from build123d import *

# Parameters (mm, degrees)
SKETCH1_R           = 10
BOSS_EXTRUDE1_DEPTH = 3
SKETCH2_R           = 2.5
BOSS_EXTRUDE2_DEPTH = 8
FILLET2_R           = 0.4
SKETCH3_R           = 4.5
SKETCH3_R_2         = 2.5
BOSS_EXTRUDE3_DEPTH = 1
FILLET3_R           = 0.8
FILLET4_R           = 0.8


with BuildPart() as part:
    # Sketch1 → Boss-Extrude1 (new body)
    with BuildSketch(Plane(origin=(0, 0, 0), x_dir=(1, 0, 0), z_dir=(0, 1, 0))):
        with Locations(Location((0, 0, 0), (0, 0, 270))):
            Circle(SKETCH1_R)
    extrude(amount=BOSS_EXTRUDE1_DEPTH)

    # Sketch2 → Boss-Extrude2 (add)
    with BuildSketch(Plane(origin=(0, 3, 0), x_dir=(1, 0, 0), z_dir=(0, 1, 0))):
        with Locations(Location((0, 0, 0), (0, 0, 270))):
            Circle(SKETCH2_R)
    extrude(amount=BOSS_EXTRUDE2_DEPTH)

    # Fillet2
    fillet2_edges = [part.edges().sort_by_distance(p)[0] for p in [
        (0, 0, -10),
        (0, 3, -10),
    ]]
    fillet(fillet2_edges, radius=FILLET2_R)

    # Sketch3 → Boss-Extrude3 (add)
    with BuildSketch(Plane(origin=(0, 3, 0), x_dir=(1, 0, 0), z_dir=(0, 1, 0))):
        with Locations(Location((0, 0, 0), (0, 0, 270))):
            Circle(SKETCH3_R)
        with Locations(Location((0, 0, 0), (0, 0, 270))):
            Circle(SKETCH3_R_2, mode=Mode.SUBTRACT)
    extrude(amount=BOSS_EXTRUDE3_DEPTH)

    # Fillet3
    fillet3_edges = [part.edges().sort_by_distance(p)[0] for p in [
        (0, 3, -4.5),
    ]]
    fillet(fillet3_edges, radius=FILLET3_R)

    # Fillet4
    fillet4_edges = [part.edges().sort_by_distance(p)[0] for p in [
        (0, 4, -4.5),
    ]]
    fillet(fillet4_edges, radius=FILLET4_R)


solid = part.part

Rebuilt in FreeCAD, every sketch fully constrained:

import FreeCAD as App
import Part
import Sketcher


def edges_at(feature, points):
    """Names of the edges that pass closest to the given points."""
    edges = feature.Shape.Edges
    near = lambda p: min(range(len(edges)), key=lambda i: edges[i].distToShape(Part.Vertex(*p))[0])
    return sorted({f"Edge{near(p) + 1}" for p in points})

doc = App.newDocument("Part")
body = doc.addObject("PartDesign::Body", "Body")

# Sketch on XZ plane
sketch1 = doc.addObject("Sketcher::SketchObject", "Sketch")
body.addObject(sketch1)
sketch1.AttachmentSupport = (doc.XZ_Plane, [""])
sketch1.MapMode = "FlatFace"
sketch1.addGeometry(Part.Circle(App.Vector(0, 0, 0), App.Vector(0, 0, 1), 10), False)
sketch1.addConstraint([
    Sketcher.Constraint("Coincident", 0, 3, -1, 1),
    Sketcher.Constraint("Diameter", 0, 20.0),
])
pad1 = doc.addObject("PartDesign::Pad", "Pad")
body.addObject(pad1)
pad1.Profile = sketch1
pad1.Length = 3
pad1.Reversed = True

# Sketch on XZ plane
sketch2 = doc.addObject("Sketcher::SketchObject", "Sketch001")
body.addObject(sketch2)
sketch2.AttachmentSupport = (doc.XZ_Plane, [""])
sketch2.MapMode = "FlatFace"
sketch2.AttachmentOffset = App.Placement(App.Vector(0, 0, -3), App.Rotation())
sketch2.addGeometry(Part.Circle(App.Vector(0, 0, 0), App.Vector(0, 0, 1), 2.5), False)
sketch2.addConstraint([
    Sketcher.Constraint("Coincident", 0, 3, -1, 1),
    Sketcher.Constraint("Diameter", 0, 5.0),
])
pad2 = doc.addObject("PartDesign::Pad", "Pad001")
body.addObject(pad2)
pad2.Profile = sketch2
pad2.Length = 8
pad2.Reversed = True
doc.recompute()

fillet = doc.addObject("PartDesign::Fillet", "Fillet")
body.addObject(fillet)
fillet.Base = (pad2, edges_at(pad2, [(0, 0, -10), (0, 3, -10)]))
fillet.Radius = 0.4

# Sketch on XZ plane
sketch3 = doc.addObject("Sketcher::SketchObject", "Sketch002")
body.addObject(sketch3)
sketch3.AttachmentSupport = (doc.XZ_Plane, [""])
sketch3.MapMode = "FlatFace"
sketch3.AttachmentOffset = App.Placement(App.Vector(0, 0, -3), App.Rotation())
sketch3.addGeometry([
    Part.Circle(App.Vector(0, 0, 0), App.Vector(0, 0, 1), 4.5),
    Part.Circle(App.Vector(0, 0, 0), App.Vector(0, 0, 1), 2.5),
], False)
sketch3.addConstraint([
    Sketcher.Constraint("Coincident", 0, 3, -1, 1),
    Sketcher.Constraint("Coincident", 1, 3, -1, 1),
    Sketcher.Constraint("Diameter", 0, 9.0),
    Sketcher.Constraint("Diameter", 1, 5.0),
])
pad3 = doc.addObject("PartDesign::Pad", "Pad002")
body.addObject(pad3)
pad3.Profile = sketch3
pad3.Length = 1
pad3.Reversed = True
doc.recompute()

fillet2 = doc.addObject("PartDesign::Fillet", "Fillet001")
body.addObject(fillet2)
fillet2.Base = (pad3, edges_at(pad3, [(0, 3, -4.5)]))
fillet2.Radius = 0.8
doc.recompute()

fillet3 = doc.addObject("PartDesign::Fillet", "Fillet002")
body.addObject(fillet3)
fillet3.Base = (fillet2, edges_at(fillet2, [(0, 4, -4.5)]))
fillet3.Radius = 0.8

doc.recompute()
